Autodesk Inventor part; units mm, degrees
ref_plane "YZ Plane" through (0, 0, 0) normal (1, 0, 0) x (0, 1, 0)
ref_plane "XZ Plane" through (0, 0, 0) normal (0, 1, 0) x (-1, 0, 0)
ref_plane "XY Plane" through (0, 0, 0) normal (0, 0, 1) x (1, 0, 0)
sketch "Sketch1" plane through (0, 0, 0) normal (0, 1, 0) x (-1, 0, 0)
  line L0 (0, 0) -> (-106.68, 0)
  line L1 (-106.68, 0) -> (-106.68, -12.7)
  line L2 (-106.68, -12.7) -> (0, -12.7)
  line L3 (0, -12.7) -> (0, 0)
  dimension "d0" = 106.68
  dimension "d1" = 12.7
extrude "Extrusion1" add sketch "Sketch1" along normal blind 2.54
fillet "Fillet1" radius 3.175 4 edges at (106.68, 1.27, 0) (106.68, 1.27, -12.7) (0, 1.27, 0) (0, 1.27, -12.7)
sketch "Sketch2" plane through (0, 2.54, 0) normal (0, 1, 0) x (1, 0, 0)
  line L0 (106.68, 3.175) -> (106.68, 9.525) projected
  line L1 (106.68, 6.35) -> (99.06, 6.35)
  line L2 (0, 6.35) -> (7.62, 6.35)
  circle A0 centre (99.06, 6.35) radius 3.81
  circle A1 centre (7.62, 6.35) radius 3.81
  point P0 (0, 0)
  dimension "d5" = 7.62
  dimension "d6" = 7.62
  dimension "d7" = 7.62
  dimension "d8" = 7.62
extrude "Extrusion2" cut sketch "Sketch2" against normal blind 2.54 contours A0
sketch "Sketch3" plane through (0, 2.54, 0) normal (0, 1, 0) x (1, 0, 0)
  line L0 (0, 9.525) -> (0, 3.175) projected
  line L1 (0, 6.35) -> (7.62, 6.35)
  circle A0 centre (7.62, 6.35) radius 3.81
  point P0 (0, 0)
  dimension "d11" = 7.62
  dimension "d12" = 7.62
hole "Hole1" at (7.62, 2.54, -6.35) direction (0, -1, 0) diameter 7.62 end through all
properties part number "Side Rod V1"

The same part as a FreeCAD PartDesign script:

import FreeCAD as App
import Part
import Sketcher
from FreeCAD import Vector
Q = App.Units.Quantity


def edges_at(feature, points):
    """Names of the edges that pass closest to the given points."""
    edges = feature.Shape.Edges
    near = lambda p: min(range(len(edges)), key=lambda i: edges[i].distToShape(Part.Vertex(*p))[0])
    return sorted({f"Edge{near(p) + 1}" for p in points})


def add_polygon(sketch, points):
    """Adds a closed chain of lines whose ends are joined by coincident constraints."""
    first, n = sketch.GeometryCount, len(points)
    for a, b in zip(points, points[1:] + points[:1]):
        sketch.addGeometry(Part.LineSegment(App.Vector(*a, 0), App.Vector(*b, 0)), False)
    for i in range(n):
        sketch.addConstraint(Sketcher.Constraint("Coincident", first + i, 2, first + (i + 1) % n, 1))

doc = App.newDocument("Part")
body = doc.addObject("PartDesign::Body", "Body")

# Sketch on XZ plane
sketch1 = body.newObject("Sketcher::SketchObject", "Sketch")
sketch1.AttachmentSupport = (doc.getObject("XZ_Plane"), [""])
sketch1.MapMode = "FlatFace"
add_polygon(sketch1, [(0, -13), (0, 0), (107, 0), (107, -13)])  # lines 0-3
sketch1.addConstraint([
    Sketcher.Constraint("Vertical", 0),
    Sketcher.Constraint("Horizontal", 1),
    Sketcher.Constraint("Vertical", 2),
    Sketcher.Constraint("Horizontal", 3),
    Sketcher.Constraint("Coincident", 0, 2, -1, 1),
    Sketcher.Constraint("DistanceX", 1, 1, 1, 2, Q("4.2 in")),
    Sketcher.Constraint("DistanceY", 0, 1, 0, 2, Q("0.5 in")),
])
pad1 = body.newObject("PartDesign::Pad", "Pad")
pad1.Profile = sketch1
pad1.Length = Q("0.1 in")
pad1.Reversed = True
doc.recompute()

fillet = body.newObject("PartDesign::Fillet", "Fillet")
fillet.Base = (pad1, edges_at(pad1, [
    (106.68, 1.27, 0),
    (106.68, 1.27, -12.7),
    (0, 1.27, 0),
    (0, 1.27, -12.7),
]))
fillet.Radius = Q("0.125 in")

# Sketch on XZ plane
sketch2 = body.newObject("Sketcher::SketchObject", "Sketch001")
sketch2.AttachmentSupport = (doc.getObject("XZ_Plane"), [""])
sketch2.MapMode = "FlatFace"
sketch2.AttachmentOffset = App.Placement(Vector(0, 0, -0.1 * 25.4), App.Rotation())
sketch2.addGeometry(Part.Circle(Vector(99.1, -6.3, 0), Vector(0, 0, 1), 3.8), False)
sketch2.addConstraint([
    Sketcher.Constraint("Diameter", 0, Q("0.3 in")),
    Sketcher.Constraint("DistanceX", -1, 1, 0, 3, Q("3.9 in")),
    Sketcher.Constraint("DistanceY", 0, 3, -1, 1, Q("0.25 in")),
])
pocket1 = body.newObject("PartDesign::Pocket", "Pocket")
pocket1.Profile = sketch2
pocket1.Length = Q("0.1 in")
pocket1.Reversed = True

# Sketch on XZ plane
sketch3 = body.newObject("Sketcher::SketchObject", "Sketch002")
sketch3.AttachmentSupport = (doc.getObject("XZ_Plane"), [""])
sketch3.MapMode = "FlatFace"
sketch3.AttachmentOffset = App.Placement(Vector(0, 0, -0.1 * 25.4), App.Rotation())
sketch3.addGeometry(Part.Circle(Vector(7.6, -6.3, 0), Vector(0, 0, 1), 3.8), False)
sketch3.addConstraint([
    Sketcher.Constraint("Diameter", 0, Q("0.3 in")),
    Sketcher.Constraint("DistanceX", -1, 1, 0, 3, Q("0.3 in")),
    Sketcher.Constraint("DistanceY", 0, 3, -1, 1, Q("0.25 in")),
])
doc.recompute()
hole = body.newObject("PartDesign::Hole", "Hole")
hole.Profile = sketch3
hole.ThreadType = "None"
hole.Diameter = Q("0.3 in")
hole.DepthType = "ThroughAll"
hole.Reversed = True

doc.recompute()
